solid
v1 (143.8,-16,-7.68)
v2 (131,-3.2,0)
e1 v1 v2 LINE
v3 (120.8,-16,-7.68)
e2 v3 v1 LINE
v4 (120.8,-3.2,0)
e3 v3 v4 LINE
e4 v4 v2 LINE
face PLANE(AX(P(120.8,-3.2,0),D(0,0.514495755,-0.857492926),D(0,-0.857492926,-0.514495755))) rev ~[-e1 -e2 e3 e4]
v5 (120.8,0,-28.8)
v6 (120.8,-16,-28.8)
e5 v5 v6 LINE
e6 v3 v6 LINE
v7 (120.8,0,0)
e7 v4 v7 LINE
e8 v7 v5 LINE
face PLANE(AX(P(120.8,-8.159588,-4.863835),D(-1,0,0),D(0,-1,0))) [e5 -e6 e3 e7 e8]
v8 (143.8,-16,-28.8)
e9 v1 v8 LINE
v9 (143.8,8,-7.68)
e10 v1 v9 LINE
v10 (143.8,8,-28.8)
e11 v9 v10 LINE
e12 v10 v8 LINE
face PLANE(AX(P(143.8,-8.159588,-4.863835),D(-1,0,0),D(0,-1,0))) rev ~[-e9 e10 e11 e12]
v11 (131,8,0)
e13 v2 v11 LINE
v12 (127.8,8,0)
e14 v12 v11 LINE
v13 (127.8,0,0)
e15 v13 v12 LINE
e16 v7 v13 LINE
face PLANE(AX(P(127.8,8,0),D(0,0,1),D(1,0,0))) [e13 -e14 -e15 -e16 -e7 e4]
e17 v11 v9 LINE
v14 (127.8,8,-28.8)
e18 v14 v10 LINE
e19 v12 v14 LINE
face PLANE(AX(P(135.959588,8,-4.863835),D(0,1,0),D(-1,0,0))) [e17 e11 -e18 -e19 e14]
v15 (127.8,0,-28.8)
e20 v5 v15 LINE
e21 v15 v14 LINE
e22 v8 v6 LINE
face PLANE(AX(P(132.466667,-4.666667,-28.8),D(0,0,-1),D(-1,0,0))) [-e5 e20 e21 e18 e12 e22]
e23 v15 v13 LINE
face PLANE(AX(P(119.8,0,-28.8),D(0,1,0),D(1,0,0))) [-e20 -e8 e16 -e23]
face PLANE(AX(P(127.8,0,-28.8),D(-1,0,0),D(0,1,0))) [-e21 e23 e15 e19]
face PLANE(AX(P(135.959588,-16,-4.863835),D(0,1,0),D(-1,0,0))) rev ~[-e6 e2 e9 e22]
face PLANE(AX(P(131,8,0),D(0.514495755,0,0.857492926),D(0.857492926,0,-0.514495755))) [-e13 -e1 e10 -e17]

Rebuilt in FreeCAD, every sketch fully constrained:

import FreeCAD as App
import Part
import Sketcher

V = App.Vector
Q = App.Units.Quantity

doc = App.newDocument("Part")
body = doc.addObject("PartDesign::Body", "Body")

# Sketch on XY plane
sketch1 = body.newObject("Sketcher::SketchObject", "Sketch")
sketch1.AttachmentSupport = (doc.getObject("XY_Plane"), [""])
sketch1.MapMode = "FlatFace"
sketch1.AttachmentOffset = App.Placement(V(0, 0, -28.8), App.Rotation())
sketch1.addGeometry([
    Part.LineSegment(V(128, 8, 0), V(128, 0, 0)),  # 0
    Part.LineSegment(V(128, 0, 0), V(120, 0, 0)),  # 1
    Part.LineSegment(V(120, 0, 0), V(120, -16, 0)),  # 2
    Part.LineSegment(V(120, -16, 0), V(144, -16, 0)),  # 3
    Part.LineSegment(V(144, -16, 0), V(144, 8, 0)),  # 4
    Part.LineSegment(V(144, 8, 0), V(128, 8, 0)),  # 5
], False)
sketch1.addConstraint([
    Sketcher.Constraint("Coincident", 0, 2, 1, 1),
    Sketcher.Constraint("Coincident", 1, 2, 2, 1),
    Sketcher.Constraint("Coincident", 2, 2, 3, 1),
    Sketcher.Constraint("Coincident", 3, 2, 4, 1),
    Sketcher.Constraint("Coincident", 4, 2, 5, 1),
    Sketcher.Constraint("Coincident", 5, 2, 0, 1),
    Sketcher.Constraint("Vertical", 0),
    Sketcher.Constraint("Horizontal", 1),
    Sketcher.Constraint("Vertical", 2),
    Sketcher.Constraint("Horizontal", 3),
    Sketcher.Constraint("Vertical", 4),
    Sketcher.Constraint("Horizontal", 5),
    Sketcher.Constraint("PointOnObject", 0, 2, -1),
    Sketcher.Constraint("Equal", 1, 0),
    Sketcher.Constraint("Equal", 5, 2),
    Sketcher.Constraint("DistanceX", 1, 2, 1, 1, Q("8 mm")),
    Sketcher.Constraint("DistanceX", 3, 1, 3, 2, Q("24 mm")),
    Sketcher.Constraint("DistanceX", -1, 1, 0, 2, Q("127.8 mm")),
])
pad1 = body.newObject("PartDesign::Pad", "Pad")
pad1.Profile = sketch1
pad1.Length = 28.8

# Sketch on YZ plane
sketch2 = body.newObject("Sketcher::SketchObject", "Sketch001")
sketch2.AttachmentSupport = (doc.getObject("YZ_Plane"), [""])
sketch2.MapMode = "FlatFace"
sketch2.AttachmentOffset = App.Placement(V(0, 0, 119.8), App.Rotation())
sketch2.addGeometry([
    Part.LineSegment(V(0, 0, 0), V(-16, -10, 0)),
    Part.LineSegment(V(-16, -10, 0), V(-16, 0, 0)),
    Part.LineSegment(V(-16, 0, 0), V(0, 0, 0)),
], False)
sketch2.addConstraint([
    Sketcher.Constraint("Coincident", 0, 2, 1, 1),
    Sketcher.Constraint("Coincident", 1, 2, 2, 1),
    Sketcher.Constraint("Coincident", 2, 2, 0, 1),
    Sketcher.Constraint("Vertical", 1),
    Sketcher.Constraint("Horizontal", 2),
    Sketcher.Constraint("Coincident", 2, 2, -1, 1),
    Sketcher.Constraint("DistanceX", 2, 1, 2, 2, Q("16 mm")),
    Sketcher.Constraint("DistanceY", 1, 1, 1, 2, Q("9.6 mm")),
])
pocket1 = body.newObject("PartDesign::Pocket", "Pocket")
pocket1.Profile = sketch2
pocket1.Length = 24
pocket1.Reversed = True

# Sketch on XZ plane
sketch3 = body.newObject("Sketcher::SketchObject", "Sketch002")
sketch3.AttachmentSupport = (doc.getObject("XZ_Plane"), [""])
sketch3.MapMode = "FlatFace"
sketch3.AttachmentOffset = App.Placement(V(0, 0, -8), App.Rotation())
sketch3.addGeometry([
    Part.LineSegment(V(144, -10, 0), V(128, 0, 0)),
    Part.LineSegment(V(128, 0, 0), V(144, 0, 0)),
    Part.LineSegment(V(144, 0, 0), V(144, -10, 0)),
], False)
sketch3.addConstraint([
    Sketcher.Constraint("Coincident", 0, 2, 1, 1),
    Sketcher.Constraint("Coincident", 1, 2, 2, 1),
    Sketcher.Constraint("Coincident", 2, 2, 0, 1),
    Sketcher.Constraint("Horizontal", 1),
    Sketcher.Constraint("Vertical", 2),
    Sketcher.Constraint("PointOnObject", 0, 2, -1),
    Sketcher.Constraint("DistanceX", 1, 1, 1, 2, Q("16 mm")),
    Sketcher.Constraint("DistanceY", 2, 2, 2, 1, Q("9.6 mm")),
    Sketcher.Constraint("DistanceX", -1, 1, 0, 2, Q("127.8 mm")),
])
pocket2 = body.newObject("PartDesign::Pocket", "Pocket001")
pocket2.Profile = sketch3
pocket2.Length = 24
pocket2.Reversed = True

# Sketch on XY plane
sketch4 = body.newObject("Sketcher::SketchObject", "Sketch003")
sketch4.AttachmentSupport = (doc.getObject("XY_Plane"), [""])
sketch4.MapMode = "FlatFace"
sketch4.AttachmentOffset = App.Placement(V(0, 0, -28.8), App.Rotation())
sketch4.addGeometry([
    Part.LineSegment(V(119.8, -16, 0), V(119.8, 0, 0)),
    Part.LineSegment(V(119.8, 0, 0), V(120.8, 0, 0)),
    Part.LineSegment(V(120.8, 0, 0), V(120.8, -16, 0)),
    Part.LineSegment(V(120.8, -16, 0), V(119.8, -16, 0)),
], False)
sketch4.addConstraint([
    Sketcher.Constraint("Coincident", 0, 2, 1, 1),
    Sketcher.Constraint("Coincident", 1, 2, 2, 1),
    Sketcher.Constraint("Coincident", 2, 2, 3, 1),
    Sketcher.Constraint("Coincident", 3, 2, 0, 1),
    Sketcher.Constraint("Vertical", 0),
    Sketcher.Constraint("Horizontal", 1),
    Sketcher.Constraint("Vertical", 2),
    Sketcher.Constraint("Horizontal", 3),
    Sketcher.Constraint("PointOnObject", 0, 2, -1),
    Sketcher.Constraint("DistanceX", 1, 1, 1, 2, Q("1 mm")),
    Sketcher.Constraint("DistanceY", 0, 1, 0, 2, Q("16 mm")),
    Sketcher.Constraint("DistanceX", -1, 1, 0, 2, Q("119.8 mm")),
])
pocket3 = body.newObject("PartDesign::Pocket", "Pocket002")
pocket3.Profile = sketch4
pocket3.Length = 30
pocket3.Reversed = True

# Sketch on XZ plane
sketch5 = body.newObject("Sketcher::SketchObject", "Sketch004")
sketch5.AttachmentSupport = (doc.getObject("XZ_Plane"), [""])
sketch5.MapMode = "FlatFace"
sketch5.AttachmentOffset = App.Placement(V(0, 0, -8), App.Rotation())
sketch5.addGeometry([
    Part.LineSegment(V(127.8, 0, 0), V(131, 0, 0)),  # 0
    Part.LineSegment(V(131, 0, 0), V(143.8, -7.7, 0)),  # 1
    Part.LineSegment(V(143.8, -7.7, 0), V(143.8, -10.9, 0)),  # 2
    Part.LineSegment(V(143.8, -10.9, 0), V(131, -3.2, 0)),  # 3
    Part.LineSegment(V(131, -3.2, 0), V(127.8, -3.2, 0)),  # 4
    Part.LineSegment(V(127.8, -3.2, 0), V(127.8, 0, 0)),  # 5
], False)
sketch5.addConstraint([
    Sketcher.Constraint("Coincident", 0, 2, 1, 1),
    Sketcher.Constraint("Coincident", 1, 2, 2, 1),
    Sketcher.Constraint("Coincident", 2, 2, 3, 1),
    Sketcher.Constraint("Coincident", 3, 2, 4, 1),
    Sketcher.Constraint("Coincident", 4, 2, 5, 1),
    Sketcher.Constraint("Coincident", 5, 2, 0, 1),
    Sketcher.Constraint("Horizontal", 0),
    Sketcher.Constraint("Vertical", 2),
    Sketcher.Constraint("Horizontal", 4),
    Sketcher.Constraint("Vertical", 5),
    Sketcher.Constraint("PointOnObject", 0, 2, -1),
    Sketcher.Constraint("Parallel", 1, 3),
    Sketcher.Constraint("Vertical", 0, 2, 3, 2),
    Sketcher.Constraint("Equal", 4, 2),
    Sketcher.Constraint("DistanceX", 0, 1, 0, 2, Q("3.2 mm")),
    Sketcher.Constraint("DistanceX", -1, 1, 0, 2, Q("131 mm")),
    Sketcher.Constraint("DistanceX", 4, 2, 1, 2, Q("16 mm")),
    Sketcher.Constraint("DistanceY", 1, 2, -1, 1, Q("7.68 mm")),
])
pad2 = body.newObject("PartDesign::Pad", "Pad001")
pad2.Profile = sketch5
pad2.Length = 24

# Sketch on YZ plane
sketch6 = body.newObject("Sketcher::SketchObject", "Sketch005")
sketch6.AttachmentSupport = (doc.getObject("YZ_Plane"), [""])
sketch6.MapMode = "FlatFace"
sketch6.AttachmentOffset = App.Placement(V(0, 0, 120.8), App.Rotation())
sketch6.addGeometry([
    Part.LineSegment(V(0, 0, 0), V(0, -3.2, 0)),  # 0
    Part.LineSegment(V(0, -3.2, 0), V(-3.2, -3.2, 0)),  # 1
    Part.LineSegment(V(-3.2, -3.2, 0), V(-16, -10.9, 0)),  # 2
    Part.LineSegment(V(-16, -10.9, 0), V(-16, -7.7, 0)),  # 3
    Part.LineSegment(V(-16, -7.7, 0), V(-3.2, 0, 0)),  # 4
    Part.LineSegment(V(-3.2, 0, 0), V(0, 0, 0)),  # 5
], False)
sketch6.addConstraint([
    Sketcher.Constraint("Coincident", 0, 2, 1, 1),
    Sketcher.Constraint("Coincident", 1, 2, 2, 1),
    Sketcher.Constraint("Coincident", 2, 2, 3, 1),
    Sketcher.Constraint("Coincident", 3, 2, 4, 1),
    Sketcher.Constraint("Coincident", 4, 2, 5, 1),
    Sketcher.Constraint("Coincident", 5, 2, 0, 1),
    Sketcher.Constraint("Vertical", 0),
    Sketcher.Constraint("Horizontal", 1),
    Sketcher.Constraint("Vertical", 3),
    Sketcher.Constraint("Horizontal", 5),
    Sketcher.Constraint("Coincident", 5, 2, -1, 1),
    Sketcher.Constraint("Parallel", 2, 4),
    Sketcher.Constraint("Vertical", 1, 2, 4, 2),
    Sketcher.Constraint("Equal", 5, 0),
    Sketcher.Constraint("DistanceX", 1, 2, 1, 1, Q("3.2 mm")),
    Sketcher.Constraint("DistanceX", 2, 2, -1, 1, Q("16 mm")),
    Sketcher.Constraint("DistanceY", 2, 2, -1, 1, Q("10.88 mm")),
])
pad3 = body.newObject("PartDesign::Pad", "Pad002")
pad3.Profile = sketch6
pad3.Length = 23

# Sketch on XZ plane
sketch7 = body.newObject("Sketcher::SketchObject", "Sketch006")
sketch7.AttachmentSupport = (doc.getObject("XZ_Plane"), [""])
sketch7.MapMode = "FlatFace"
sketch7.AttachmentOffset = App.Placement(V(0, 0, -8), App.Rotation())
sketch7.addGeometry([
    Part.LineSegment(V(144, -8, 0), V(131, 0, 0)),
    Part.LineSegment(V(131, 0, 0), V(144, 0, 0)),
    Part.LineSegment(V(144, 0, 0), V(144, -8, 0)),
], False)
sketch7.addConstraint([
    Sketcher.Constraint("Coincident", 0, 2, 1, 1),
    Sketcher.Constraint("Coincident", 1, 2, 2, 1),
    Sketcher.Constraint("Coincident", 2, 2, 0, 1),
    Sketcher.Constraint("Horizontal", 1),
    Sketcher.Constraint("Vertical", 2),
    Sketcher.Constraint("PointOnObject", 0, 2, -1),
    Sketcher.Constraint("DistanceX", 1, 1, 1, 2, Q("12.8 mm")),
    Sketcher.Constraint("DistanceX", -1, 1, 0, 2, Q("131 mm")),
    Sketcher.Constraint("DistanceY", 2, 2, 2, 1, Q("7.68 mm")),
])
pocket4 = body.newObject("PartDesign::Pocket", "Pocket003")
pocket4.Profile = sketch7
pocket4.Length = 30
pocket4.Reversed = True

# Sketch on YZ plane
sketch8 = body.newObject("Sketcher::SketchObject", "Sketch007")
sketch8.AttachmentSupport = (doc.getObject("YZ_Plane"), [""])
sketch8.MapMode = "FlatFace"
sketch8.AttachmentOffset = App.Placement(V(0, 0, 120.8), App.Rotation())
sketch8.addGeometry([
    Part.LineSegment(V(-3, 0, 0), V(-16, -8, 0)),
    Part.LineSegment(V(-16, -8, 0), V(-16, 0, 0)),
    Part.LineSegment(V(-16, 0, 0), V(-3, 0, 0)),
], False)
sketch8.addConstraint([
    Sketcher.Constraint("Coincident", 0, 2, 1, 1),
    Sketcher.Constraint("Coincident", 1, 2, 2, 1),
    Sketcher.Constraint("Coincident", 2, 2, 0, 1),
    Sketcher.Constraint("Vertical", 1),
    Sketcher.Constraint("Horizontal", 2),
    Sketcher.Constraint("PointOnObject", 1, 2, -1),
    Sketcher.Constraint("DistanceX", 2, 1, 2, 2, Q("12.8 mm")),
    Sketcher.Constraint("DistanceX", 0, 2, -1, 1, Q("16 mm")),
    Sketcher.Constraint("DistanceY", 1, 1, 1, 2, Q("7.68 mm")),
])
pocket5 = body.newObject("PartDesign::Pocket", "Pocket004")
pocket5.Profile = sketch8
pocket5.Length = 26
pocket5.Reversed = True

doc.recompute()
